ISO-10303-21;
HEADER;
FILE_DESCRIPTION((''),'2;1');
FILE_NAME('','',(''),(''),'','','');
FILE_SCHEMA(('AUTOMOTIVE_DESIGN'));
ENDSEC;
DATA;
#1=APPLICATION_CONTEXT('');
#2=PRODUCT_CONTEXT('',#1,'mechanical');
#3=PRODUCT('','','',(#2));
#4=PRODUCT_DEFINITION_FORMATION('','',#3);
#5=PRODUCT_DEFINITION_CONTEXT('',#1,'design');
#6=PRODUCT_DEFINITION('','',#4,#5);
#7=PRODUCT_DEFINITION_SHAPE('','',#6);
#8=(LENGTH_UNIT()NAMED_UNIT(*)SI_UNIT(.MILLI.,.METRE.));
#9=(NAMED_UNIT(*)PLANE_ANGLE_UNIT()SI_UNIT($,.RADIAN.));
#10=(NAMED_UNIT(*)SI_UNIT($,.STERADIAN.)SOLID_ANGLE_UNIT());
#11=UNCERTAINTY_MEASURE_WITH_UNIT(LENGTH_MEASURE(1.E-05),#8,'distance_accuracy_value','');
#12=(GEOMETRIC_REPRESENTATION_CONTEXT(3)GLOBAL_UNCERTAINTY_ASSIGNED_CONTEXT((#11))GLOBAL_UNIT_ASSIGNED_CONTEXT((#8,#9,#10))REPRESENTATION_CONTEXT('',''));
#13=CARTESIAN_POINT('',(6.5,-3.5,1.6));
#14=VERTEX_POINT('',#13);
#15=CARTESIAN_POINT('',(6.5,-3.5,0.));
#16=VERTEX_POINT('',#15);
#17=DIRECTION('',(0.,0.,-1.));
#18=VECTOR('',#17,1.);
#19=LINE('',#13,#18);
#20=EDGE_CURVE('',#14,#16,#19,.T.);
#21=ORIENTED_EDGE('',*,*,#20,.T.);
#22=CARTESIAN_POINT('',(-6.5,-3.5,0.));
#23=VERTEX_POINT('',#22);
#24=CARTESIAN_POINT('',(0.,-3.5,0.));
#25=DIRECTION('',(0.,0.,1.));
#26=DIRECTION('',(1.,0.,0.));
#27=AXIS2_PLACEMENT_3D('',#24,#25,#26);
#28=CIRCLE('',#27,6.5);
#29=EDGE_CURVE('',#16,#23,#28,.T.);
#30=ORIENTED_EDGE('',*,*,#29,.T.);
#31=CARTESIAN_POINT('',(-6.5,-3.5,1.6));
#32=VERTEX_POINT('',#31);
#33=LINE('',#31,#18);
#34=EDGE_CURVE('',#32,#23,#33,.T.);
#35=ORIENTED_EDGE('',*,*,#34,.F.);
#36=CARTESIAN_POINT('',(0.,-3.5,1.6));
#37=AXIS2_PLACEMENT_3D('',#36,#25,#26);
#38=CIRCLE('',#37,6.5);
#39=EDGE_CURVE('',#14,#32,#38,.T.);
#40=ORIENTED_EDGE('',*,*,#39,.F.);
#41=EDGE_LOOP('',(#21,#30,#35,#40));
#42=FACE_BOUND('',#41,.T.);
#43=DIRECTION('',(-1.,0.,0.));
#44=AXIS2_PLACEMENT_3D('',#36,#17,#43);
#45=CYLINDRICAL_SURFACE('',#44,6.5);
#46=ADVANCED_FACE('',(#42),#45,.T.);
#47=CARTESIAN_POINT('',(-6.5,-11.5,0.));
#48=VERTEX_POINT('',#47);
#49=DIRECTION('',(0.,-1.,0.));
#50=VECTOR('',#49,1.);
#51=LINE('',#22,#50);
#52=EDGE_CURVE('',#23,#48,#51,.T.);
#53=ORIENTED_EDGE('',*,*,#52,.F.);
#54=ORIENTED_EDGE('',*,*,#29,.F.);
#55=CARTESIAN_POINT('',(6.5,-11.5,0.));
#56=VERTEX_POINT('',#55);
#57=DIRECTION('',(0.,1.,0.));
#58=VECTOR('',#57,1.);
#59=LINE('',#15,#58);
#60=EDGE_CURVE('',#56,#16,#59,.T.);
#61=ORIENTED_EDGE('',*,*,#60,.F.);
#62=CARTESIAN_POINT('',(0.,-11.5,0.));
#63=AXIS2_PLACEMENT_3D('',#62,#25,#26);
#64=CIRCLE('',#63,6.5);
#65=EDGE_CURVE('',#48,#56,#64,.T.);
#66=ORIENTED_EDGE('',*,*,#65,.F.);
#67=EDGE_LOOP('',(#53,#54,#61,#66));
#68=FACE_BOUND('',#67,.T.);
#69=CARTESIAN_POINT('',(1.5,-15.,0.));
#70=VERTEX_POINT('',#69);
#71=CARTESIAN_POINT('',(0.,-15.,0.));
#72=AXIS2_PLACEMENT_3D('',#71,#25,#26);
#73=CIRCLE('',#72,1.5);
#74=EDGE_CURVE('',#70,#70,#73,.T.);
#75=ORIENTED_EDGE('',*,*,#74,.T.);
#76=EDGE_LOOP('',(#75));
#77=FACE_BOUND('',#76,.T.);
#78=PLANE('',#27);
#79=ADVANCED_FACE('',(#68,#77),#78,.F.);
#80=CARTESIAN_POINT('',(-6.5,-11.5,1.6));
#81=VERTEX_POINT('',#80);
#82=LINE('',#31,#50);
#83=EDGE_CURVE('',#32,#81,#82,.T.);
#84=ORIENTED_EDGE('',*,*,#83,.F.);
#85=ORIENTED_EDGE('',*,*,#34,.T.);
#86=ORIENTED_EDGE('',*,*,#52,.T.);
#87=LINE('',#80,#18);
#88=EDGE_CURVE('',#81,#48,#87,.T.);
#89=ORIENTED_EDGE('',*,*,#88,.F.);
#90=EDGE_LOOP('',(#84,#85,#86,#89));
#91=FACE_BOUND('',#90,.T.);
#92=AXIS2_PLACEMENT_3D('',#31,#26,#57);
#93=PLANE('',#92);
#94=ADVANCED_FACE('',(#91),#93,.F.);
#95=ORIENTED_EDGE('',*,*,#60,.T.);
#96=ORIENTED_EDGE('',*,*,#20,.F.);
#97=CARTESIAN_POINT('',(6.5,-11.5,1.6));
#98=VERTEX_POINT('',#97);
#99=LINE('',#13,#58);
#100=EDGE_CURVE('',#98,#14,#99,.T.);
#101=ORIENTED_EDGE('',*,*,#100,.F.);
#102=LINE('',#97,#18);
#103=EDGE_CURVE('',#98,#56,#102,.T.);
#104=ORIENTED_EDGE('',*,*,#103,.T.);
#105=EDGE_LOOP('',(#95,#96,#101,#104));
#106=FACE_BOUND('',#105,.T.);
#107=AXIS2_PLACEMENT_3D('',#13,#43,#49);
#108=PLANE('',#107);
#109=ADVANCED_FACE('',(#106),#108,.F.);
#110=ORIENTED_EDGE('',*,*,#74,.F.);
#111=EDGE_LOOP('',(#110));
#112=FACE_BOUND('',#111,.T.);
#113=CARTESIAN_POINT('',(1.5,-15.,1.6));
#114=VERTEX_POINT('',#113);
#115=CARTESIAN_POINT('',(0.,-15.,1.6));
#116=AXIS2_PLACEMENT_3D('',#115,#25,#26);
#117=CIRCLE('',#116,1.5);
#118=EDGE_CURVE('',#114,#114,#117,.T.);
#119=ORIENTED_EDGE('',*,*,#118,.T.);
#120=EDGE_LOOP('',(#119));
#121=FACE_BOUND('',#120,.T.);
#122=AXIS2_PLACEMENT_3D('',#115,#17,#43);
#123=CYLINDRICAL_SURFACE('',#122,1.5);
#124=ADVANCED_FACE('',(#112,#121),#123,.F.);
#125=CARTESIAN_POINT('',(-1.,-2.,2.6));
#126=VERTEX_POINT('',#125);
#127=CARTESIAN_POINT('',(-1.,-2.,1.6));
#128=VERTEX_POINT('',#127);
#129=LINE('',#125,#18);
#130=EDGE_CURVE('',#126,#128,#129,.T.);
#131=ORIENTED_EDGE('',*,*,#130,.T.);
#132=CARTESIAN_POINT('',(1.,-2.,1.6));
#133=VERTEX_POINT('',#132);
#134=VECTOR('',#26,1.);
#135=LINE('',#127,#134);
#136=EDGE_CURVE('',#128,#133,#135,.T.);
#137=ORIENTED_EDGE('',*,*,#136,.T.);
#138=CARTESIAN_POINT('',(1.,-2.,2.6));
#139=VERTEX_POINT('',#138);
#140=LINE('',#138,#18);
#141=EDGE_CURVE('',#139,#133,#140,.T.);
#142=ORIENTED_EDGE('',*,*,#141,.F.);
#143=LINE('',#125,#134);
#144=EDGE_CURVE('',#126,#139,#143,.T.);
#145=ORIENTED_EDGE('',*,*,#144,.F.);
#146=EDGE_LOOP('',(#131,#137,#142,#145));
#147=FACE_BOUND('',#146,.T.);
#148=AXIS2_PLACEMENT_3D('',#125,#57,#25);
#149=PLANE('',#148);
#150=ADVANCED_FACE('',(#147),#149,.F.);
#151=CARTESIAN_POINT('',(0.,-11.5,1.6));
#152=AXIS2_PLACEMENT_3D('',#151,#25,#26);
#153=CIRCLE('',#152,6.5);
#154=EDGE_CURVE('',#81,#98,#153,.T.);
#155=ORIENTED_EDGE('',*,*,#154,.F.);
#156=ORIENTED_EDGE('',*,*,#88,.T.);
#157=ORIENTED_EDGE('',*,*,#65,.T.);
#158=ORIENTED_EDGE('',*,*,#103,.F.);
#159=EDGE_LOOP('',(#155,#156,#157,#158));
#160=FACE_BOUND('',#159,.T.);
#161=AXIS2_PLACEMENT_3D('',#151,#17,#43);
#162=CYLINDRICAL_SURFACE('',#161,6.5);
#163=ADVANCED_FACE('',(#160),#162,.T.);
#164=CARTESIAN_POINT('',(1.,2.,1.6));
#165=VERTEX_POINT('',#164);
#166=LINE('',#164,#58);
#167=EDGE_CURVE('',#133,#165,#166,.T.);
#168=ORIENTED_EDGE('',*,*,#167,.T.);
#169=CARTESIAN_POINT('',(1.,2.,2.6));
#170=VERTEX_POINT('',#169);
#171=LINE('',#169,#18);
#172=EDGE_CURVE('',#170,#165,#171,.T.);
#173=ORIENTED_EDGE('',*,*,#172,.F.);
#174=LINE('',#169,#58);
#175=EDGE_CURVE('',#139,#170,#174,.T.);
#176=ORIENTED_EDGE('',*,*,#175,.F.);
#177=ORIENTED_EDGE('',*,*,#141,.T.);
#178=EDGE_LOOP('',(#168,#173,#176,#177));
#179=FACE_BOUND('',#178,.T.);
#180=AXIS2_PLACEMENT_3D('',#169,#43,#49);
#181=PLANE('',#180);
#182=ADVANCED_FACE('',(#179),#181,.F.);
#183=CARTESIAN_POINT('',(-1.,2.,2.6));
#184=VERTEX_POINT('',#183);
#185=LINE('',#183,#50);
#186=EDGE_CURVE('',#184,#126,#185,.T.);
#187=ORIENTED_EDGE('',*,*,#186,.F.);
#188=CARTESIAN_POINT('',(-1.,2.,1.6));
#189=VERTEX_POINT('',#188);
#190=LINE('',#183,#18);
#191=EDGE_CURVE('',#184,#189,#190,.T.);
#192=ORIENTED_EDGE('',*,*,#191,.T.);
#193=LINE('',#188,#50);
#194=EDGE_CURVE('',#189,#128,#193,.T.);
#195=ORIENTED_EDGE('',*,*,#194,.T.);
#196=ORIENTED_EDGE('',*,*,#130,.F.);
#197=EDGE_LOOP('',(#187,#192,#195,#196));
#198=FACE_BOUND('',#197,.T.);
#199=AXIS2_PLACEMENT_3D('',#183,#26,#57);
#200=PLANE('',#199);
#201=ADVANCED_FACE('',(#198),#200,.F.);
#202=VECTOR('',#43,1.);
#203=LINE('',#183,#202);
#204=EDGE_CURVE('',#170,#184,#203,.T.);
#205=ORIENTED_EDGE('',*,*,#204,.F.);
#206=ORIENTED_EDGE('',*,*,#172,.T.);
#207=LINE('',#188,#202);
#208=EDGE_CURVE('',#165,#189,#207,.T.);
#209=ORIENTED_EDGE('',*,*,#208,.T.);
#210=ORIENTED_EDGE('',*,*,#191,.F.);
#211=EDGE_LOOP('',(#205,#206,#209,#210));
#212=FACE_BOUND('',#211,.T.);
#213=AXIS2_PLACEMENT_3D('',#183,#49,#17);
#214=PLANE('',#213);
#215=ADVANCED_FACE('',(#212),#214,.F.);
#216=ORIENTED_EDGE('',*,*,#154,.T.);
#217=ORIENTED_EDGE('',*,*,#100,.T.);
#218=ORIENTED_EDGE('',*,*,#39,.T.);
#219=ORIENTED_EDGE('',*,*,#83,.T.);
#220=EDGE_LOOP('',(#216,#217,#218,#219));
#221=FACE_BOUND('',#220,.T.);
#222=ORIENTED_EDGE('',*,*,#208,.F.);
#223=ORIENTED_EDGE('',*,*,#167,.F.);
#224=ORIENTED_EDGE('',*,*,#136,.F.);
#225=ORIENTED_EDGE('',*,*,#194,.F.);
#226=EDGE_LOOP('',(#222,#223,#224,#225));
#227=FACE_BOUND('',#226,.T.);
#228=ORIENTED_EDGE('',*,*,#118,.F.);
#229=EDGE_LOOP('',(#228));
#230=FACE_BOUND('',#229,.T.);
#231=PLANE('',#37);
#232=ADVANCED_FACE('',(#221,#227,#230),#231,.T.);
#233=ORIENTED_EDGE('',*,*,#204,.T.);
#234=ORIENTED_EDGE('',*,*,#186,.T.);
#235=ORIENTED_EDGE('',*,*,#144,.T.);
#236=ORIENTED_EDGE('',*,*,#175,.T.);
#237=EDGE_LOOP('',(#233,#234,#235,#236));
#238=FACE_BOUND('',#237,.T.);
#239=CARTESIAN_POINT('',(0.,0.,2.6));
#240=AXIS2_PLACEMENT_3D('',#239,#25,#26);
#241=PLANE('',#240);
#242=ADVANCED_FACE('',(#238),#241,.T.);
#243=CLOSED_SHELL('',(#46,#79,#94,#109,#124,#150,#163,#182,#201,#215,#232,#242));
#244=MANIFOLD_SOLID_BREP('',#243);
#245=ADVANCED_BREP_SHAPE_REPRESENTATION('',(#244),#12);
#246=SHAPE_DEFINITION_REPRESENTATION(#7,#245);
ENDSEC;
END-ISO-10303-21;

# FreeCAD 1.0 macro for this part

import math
import FreeCAD as App
import Part
import Sketcher

V = App.Vector

doc = App.newDocument("Part")
body = doc.addObject("PartDesign::Body", "Body")

sketch1 = body.newObject("Sketcher::SketchObject", "Sketch")
sketch1.AttachmentSupport = (doc.getObject("XY_Plane"), [""])
sketch1.MapMode = "FlatFace"
sketch1.addGeometry(Part.LineSegment(V(6.5, -11.5, 0), V(6.5, -3.5, 0)), False)
sketch1.addGeometry(Part.ArcOfCircle(Part.Circle(V(0, -3.5, 0), V(0, 0, 1), 6.5), math.radians(0), math.radians(180)), False)
sketch1.addGeometry(Part.LineSegment(V(-6.5, -3.5, 0), V(-6.5, -11.5, 0)), False)
sketch1.addGeometry(Part.ArcOfCircle(Part.Circle(V(0, -11.5, 0), V(0, 0, 1), 6.5), math.radians(180), math.radians(360)), False)
sketch1.addGeometry(Part.Circle(V(0, -15, 0), V(0, 0, 1), 1.5), False)
sketch1.addConstraint(Sketcher.Constraint("Tangent", 0, 2, 1, 1))
sketch1.addConstraint(Sketcher.Constraint("Tangent", 1, 2, 2, 1))
sketch1.addConstraint(Sketcher.Constraint("Tangent", 2, 2, 3, 1))
sketch1.addConstraint(Sketcher.Constraint("Tangent", 3, 2, 0, 1))
sketch1.addConstraint(Sketcher.Constraint("Vertical", 0))
sketch1.addConstraint(Sketcher.Constraint("Vertical", 2))
sketch1.addConstraint(Sketcher.Constraint("PointOnObject", 1, 3, -2))
sketch1.addConstraint(Sketcher.Constraint("PointOnObject", 4, 3, -2))
sketch1.addConstraint(Sketcher.Constraint("Diameter", 4, 3.0))
sketch1.addConstraint(Sketcher.Constraint("Radius", 1, 6.5))
sketch1.addConstraint(Sketcher.Constraint("DistanceY", 0, 1, 0, 2, 8.0))
sketch1.addConstraint(Sketcher.Constraint("DistanceY", 4, 3, -1, 1, 15.0))
sketch1.addConstraint(Sketcher.Constraint("DistanceY", 1, 3, -1, 1, 3.5))
pad1 = body.newObject("PartDesign::Pad", "Pad")
pad1.Profile = sketch1
pad1.Length = 1.6

sketch2 = body.newObject("Sketcher::SketchObject", "Sketch001")
sketch2.AttachmentSupport = (doc.getObject("XY_Plane"), [""])
sketch2.MapMode = "FlatFace"
sketch2.AttachmentOffset = App.Placement(V(0, 0, 1.6), App.Rotation())
sketch2.addGeometry(Part.LineSegment(V(-1, 2, 0), V(-1, -2, 0)), False)
sketch2.addGeometry(Part.LineSegment(V(-1, -2, 0), V(1, -2, 0)), False)
sketch2.addGeometry(Part.LineSegment(V(1, -2, 0), V(1, 2, 0)), False)
sketch2.addGeometry(Part.LineSegment(V(1, 2, 0), V(-1, 2, 0)), False)
sketch2.addConstraint(Sketcher.Constraint("Coincident", 0, 2, 1, 1))
sketch2.addConstraint(Sketcher.Constraint("Coincident", 1, 2, 2, 1))
sketch2.addConstraint(Sketcher.Constraint("Coincident", 2, 2, 3, 1))
sketch2.addConstraint(Sketcher.Constraint("Coincident", 3, 2, 0, 1))
sketch2.addConstraint(Sketcher.Constraint("Vertical", 0))
sketch2.addConstraint(Sketcher.Constraint("Horizontal", 1))
sketch2.addConstraint(Sketcher.Constraint("Vertical", 2))
sketch2.addConstraint(Sketcher.Constraint("Horizontal", 3))
sketch2.addConstraint(Sketcher.Constraint("Symmetric", 0, 2, 2, 2, -1, 1))
sketch2.addConstraint(Sketcher.Constraint("DistanceX", 1, 1, 1, 2, 2.0))
sketch2.addConstraint(Sketcher.Constraint("DistanceY", 0, 2, 0, 1, 4.0))
pad2 = body.newObject("PartDesign::Pad", "Pad001")
pad2.Profile = sketch2
pad2.Length = 1

doc.recompute()
